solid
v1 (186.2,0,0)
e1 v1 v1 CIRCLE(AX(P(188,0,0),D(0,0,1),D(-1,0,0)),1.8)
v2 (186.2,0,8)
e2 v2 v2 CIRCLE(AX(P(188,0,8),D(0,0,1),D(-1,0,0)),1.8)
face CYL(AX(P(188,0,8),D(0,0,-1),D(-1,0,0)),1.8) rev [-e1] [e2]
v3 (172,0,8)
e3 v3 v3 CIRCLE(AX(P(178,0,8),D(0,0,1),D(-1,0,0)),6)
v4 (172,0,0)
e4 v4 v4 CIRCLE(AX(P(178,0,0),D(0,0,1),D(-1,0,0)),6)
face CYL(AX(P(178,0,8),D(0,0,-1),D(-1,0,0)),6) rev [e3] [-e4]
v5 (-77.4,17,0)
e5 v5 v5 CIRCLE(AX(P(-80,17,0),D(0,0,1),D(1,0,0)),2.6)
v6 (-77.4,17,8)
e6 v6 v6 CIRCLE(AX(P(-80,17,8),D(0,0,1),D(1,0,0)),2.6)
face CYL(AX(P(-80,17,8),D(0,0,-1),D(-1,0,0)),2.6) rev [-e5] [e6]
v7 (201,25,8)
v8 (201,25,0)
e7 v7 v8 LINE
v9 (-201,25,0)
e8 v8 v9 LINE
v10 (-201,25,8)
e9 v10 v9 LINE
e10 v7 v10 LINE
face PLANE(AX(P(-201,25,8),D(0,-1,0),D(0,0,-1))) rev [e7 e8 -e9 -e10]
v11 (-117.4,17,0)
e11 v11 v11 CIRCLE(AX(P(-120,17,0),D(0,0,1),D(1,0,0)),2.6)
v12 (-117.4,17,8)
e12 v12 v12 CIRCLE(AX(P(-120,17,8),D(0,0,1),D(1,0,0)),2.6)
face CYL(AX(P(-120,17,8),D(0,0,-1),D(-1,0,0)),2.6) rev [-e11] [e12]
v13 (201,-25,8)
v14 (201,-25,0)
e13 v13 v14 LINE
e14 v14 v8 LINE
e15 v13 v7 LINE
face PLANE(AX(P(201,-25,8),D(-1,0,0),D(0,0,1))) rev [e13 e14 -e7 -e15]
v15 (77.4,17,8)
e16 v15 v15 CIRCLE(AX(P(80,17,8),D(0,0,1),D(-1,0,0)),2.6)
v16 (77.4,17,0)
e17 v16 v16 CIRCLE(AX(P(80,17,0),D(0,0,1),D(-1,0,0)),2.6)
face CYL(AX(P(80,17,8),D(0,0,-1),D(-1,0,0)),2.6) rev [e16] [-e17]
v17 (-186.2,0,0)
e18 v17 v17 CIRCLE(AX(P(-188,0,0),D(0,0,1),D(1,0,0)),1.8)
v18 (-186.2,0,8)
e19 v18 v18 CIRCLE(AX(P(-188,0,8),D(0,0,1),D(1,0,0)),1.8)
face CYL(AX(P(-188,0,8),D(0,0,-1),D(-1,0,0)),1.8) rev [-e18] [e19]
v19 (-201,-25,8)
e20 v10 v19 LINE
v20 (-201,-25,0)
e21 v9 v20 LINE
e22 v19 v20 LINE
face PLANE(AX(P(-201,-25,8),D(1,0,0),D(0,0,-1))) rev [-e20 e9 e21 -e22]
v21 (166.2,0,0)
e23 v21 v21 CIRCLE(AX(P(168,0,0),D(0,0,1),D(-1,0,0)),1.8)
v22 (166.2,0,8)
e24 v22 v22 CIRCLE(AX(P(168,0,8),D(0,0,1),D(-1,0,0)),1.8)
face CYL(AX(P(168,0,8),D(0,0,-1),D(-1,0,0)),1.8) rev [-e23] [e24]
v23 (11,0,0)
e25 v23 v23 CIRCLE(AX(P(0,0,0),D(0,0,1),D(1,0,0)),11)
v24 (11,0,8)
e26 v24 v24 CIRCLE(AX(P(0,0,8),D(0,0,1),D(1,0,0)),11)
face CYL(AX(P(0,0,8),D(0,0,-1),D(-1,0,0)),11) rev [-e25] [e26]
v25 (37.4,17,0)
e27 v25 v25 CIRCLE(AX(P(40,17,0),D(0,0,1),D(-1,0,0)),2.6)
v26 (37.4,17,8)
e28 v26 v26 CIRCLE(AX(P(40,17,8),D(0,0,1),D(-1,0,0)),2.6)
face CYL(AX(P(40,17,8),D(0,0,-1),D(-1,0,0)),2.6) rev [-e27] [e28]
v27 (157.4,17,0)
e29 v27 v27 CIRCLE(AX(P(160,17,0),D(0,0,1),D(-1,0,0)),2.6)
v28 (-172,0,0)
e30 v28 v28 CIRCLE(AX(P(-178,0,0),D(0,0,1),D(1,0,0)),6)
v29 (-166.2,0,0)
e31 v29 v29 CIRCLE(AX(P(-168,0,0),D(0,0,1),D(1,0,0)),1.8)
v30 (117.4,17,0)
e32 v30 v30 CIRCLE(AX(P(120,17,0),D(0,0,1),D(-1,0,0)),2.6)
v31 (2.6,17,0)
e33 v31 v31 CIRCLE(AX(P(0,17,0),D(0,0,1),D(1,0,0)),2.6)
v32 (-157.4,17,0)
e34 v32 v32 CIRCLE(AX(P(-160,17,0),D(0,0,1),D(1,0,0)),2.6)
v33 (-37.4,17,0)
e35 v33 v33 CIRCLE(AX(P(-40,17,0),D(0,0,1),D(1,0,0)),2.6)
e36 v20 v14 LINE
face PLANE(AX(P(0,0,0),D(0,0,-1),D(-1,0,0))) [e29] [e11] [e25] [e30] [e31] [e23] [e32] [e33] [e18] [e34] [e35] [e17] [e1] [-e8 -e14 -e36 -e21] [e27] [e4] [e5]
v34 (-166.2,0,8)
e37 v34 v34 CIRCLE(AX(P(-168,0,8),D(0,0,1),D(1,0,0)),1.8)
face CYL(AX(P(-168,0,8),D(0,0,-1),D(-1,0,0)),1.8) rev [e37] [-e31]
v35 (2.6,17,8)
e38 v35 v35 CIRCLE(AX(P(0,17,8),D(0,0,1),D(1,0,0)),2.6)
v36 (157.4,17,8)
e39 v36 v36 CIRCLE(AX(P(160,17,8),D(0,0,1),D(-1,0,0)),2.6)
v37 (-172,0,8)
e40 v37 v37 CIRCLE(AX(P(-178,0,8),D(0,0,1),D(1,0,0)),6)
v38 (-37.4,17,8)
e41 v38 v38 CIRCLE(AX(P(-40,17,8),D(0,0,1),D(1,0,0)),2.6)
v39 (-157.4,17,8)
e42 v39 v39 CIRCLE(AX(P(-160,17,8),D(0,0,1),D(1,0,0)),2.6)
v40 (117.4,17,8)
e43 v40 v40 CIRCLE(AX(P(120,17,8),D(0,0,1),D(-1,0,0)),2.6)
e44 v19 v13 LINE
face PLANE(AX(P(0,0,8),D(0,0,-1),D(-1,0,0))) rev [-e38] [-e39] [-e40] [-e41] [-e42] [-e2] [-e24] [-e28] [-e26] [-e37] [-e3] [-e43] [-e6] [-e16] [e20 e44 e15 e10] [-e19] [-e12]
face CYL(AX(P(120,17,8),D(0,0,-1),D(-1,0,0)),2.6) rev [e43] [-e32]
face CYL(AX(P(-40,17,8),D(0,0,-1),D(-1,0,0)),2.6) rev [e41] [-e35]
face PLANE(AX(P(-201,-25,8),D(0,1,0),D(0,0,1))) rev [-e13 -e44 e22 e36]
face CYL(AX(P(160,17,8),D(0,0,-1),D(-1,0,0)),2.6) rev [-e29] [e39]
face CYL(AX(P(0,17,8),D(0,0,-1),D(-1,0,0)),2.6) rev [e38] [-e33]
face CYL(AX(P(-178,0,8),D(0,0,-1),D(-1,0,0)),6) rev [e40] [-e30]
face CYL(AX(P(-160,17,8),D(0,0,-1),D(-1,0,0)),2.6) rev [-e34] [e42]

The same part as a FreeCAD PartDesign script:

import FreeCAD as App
import Part
import Sketcher

doc = App.newDocument("Part")
body = doc.addObject("PartDesign::Body", "Body")

sketch1 = body.newObject("Sketcher::SketchObject", "Sketch")
sketch1.AttachmentSupport = (doc.getObject("XY_Plane"), [""])
sketch1.MapMode = "FlatFace"
sketch1.addGeometry([
    Part.LineSegment(App.Vector(-201, 25, 0), App.Vector(-201, -25, 0)),
    Part.LineSegment(App.Vector(-201, -25, 0), App.Vector(201, -25, 0)),
    Part.LineSegment(App.Vector(201, -25, 0), App.Vector(201, 25, 0)),
    Part.LineSegment(App.Vector(201, 25, 0), App.Vector(-201, 25, 0)),
    Part.Circle(App.Vector(-188, 0, 0), App.Vector(0, 0, 1), 1.8),
    Part.Circle(App.Vector(-178, 0, 0), App.Vector(0, 0, 1), 6),
    Part.Circle(App.Vector(-168, 0, 0), App.Vector(0, 0, 1), 1.8),
    Part.Circle(App.Vector(0, 0, 0), App.Vector(0, 0, 1), 11),
    Part.Circle(App.Vector(168, 0, 0), App.Vector(0, 0, 1), 1.8),
    Part.Circle(App.Vector(178, 0, 0), App.Vector(0, 0, 1), 6),
    Part.Circle(App.Vector(188, 0, 0), App.Vector(0, 0, 1), 1.8),
    Part.Circle(App.Vector(-160, 17, 0), App.Vector(0, 0, 1), 2.6),
    Part.Circle(App.Vector(-120, 17, 0), App.Vector(0, 0, 1), 2.6),
    Part.Circle(App.Vector(-80, 17, 0), App.Vector(0, 0, 1), 2.6),
    Part.Circle(App.Vector(-40, 17, 0), App.Vector(0, 0, 1), 2.6),
    Part.Circle(App.Vector(0, 17, 0), App.Vector(0, 0, 1), 2.6),
    Part.Circle(App.Vector(40, 17, 0), App.Vector(0, 0, 1), 2.6),
    Part.Circle(App.Vector(80, 17, 0), App.Vector(0, 0, 1), 2.6),
    Part.Circle(App.Vector(120, 17, 0), App.Vector(0, 0, 1), 2.6),
    Part.Circle(App.Vector(160, 17, 0), App.Vector(0, 0, 1), 2.6),
], False)
sketch1.addConstraint([
    Sketcher.Constraint("Coincident", 0, 2, 1, 1),
    Sketcher.Constraint("Coincident", 1, 2, 2, 1),
    Sketcher.Constraint("Coincident", 2, 2, 3, 1),
    Sketcher.Constraint("Coincident", 3, 2, 0, 1),
    Sketcher.Constraint("Vertical", 0),
    Sketcher.Constraint("Horizontal", 1),
    Sketcher.Constraint("Vertical", 2),
    Sketcher.Constraint("Horizontal", 3),
    Sketcher.Constraint("Coincident", 7, 3, -1, 1),
    Sketcher.Constraint("Equal", 4, 6),
    Sketcher.Constraint("Equal", 6, 8),
    Sketcher.Constraint("Equal", 5, 9),
    Sketcher.Constraint("Equal", 8, 10),
    Sketcher.Constraint("Equal", 11, 12),
    Sketcher.Constraint("Equal", 12, 13),
    Sketcher.Constraint("Equal", 13, 14),
    Sketcher.Constraint("Equal", 14, 15),
    Sketcher.Constraint("Equal", 15, 16),
    Sketcher.Constraint("Equal", 16, 17),
    Sketcher.Constraint("Equal", 17, 18),
    Sketcher.Constraint("Equal", 18, 19),
    Sketcher.Constraint("Symmetric", 6, 3, 8, 3, -1, 1),
    Sketcher.Constraint("Symmetric", 5, 3, 9, 3, -1, 1),
    Sketcher.Constraint("Symmetric", 4, 3, 10, 3, -1, 1),
    Sketcher.Constraint("Symmetric", 0, 2, 2, 2, -1, 1),
    Sketcher.Constraint("Symmetric", 14, 3, 16, 3, -2),
    Sketcher.Constraint("Symmetric", 13, 3, 17, 3, -2),
    Sketcher.Constraint("Symmetric", 12, 3, 18, 3, -2),
    Sketcher.Constraint("Symmetric", 11, 3, 19, 3, -2),
    Sketcher.Constraint("PointOnObject", 4, 3, -1),
    Sketcher.Constraint("PointOnObject", 5, 3, -1),
    Sketcher.Constraint("PointOnObject", 6, 3, -1),
    Sketcher.Constraint("PointOnObject", 15, 3, -2),
    Sketcher.Constraint("Horizontal", 11, 3, 12, 3),
    Sketcher.Constraint("Horizontal", 12, 3, 13, 3),
    Sketcher.Constraint("Horizontal", 13, 3, 14, 3),
    Sketcher.Constraint("Horizontal", 14, 3, 15, 3),
    Sketcher.Constraint("Diameter", 5, 12.0),
    Sketcher.Constraint("Diameter", 7, 22.0),
    Sketcher.Constraint("Diameter", 4, 3.6),
    Sketcher.Constraint("Diameter", 11, 5.2),
    Sketcher.Constraint("DistanceX", 1, 1, 1, 2, 402.0),
    Sketcher.Constraint("DistanceY", 0, 2, 0, 1, 50.0),
    Sketcher.Constraint("DistanceX", 4, 3, -1, 1, 188.0),
    Sketcher.Constraint("DistanceX", 5, 3, -1, 1, 178.0),
    Sketcher.Constraint("DistanceX", 6, 3, -1, 1, 168.0),
    Sketcher.Constraint("DistanceX", 11, 3, -1, 1, 160.0),
    Sketcher.Constraint("DistanceY", -1, 1, 11, 3, 17.0),
    Sketcher.Constraint("DistanceX", 12, 3, -1, 1, 120.0),
    Sketcher.Constraint("DistanceX", 13, 3, -1, 1, 80.0),
    Sketcher.Constraint("DistanceX", 14, 3, -1, 1, 40.0),
])
pad1 = body.newObject("PartDesign::Pad", "Pad")
pad1.Profile = sketch1
pad1.Length = 8

doc.recompute()
